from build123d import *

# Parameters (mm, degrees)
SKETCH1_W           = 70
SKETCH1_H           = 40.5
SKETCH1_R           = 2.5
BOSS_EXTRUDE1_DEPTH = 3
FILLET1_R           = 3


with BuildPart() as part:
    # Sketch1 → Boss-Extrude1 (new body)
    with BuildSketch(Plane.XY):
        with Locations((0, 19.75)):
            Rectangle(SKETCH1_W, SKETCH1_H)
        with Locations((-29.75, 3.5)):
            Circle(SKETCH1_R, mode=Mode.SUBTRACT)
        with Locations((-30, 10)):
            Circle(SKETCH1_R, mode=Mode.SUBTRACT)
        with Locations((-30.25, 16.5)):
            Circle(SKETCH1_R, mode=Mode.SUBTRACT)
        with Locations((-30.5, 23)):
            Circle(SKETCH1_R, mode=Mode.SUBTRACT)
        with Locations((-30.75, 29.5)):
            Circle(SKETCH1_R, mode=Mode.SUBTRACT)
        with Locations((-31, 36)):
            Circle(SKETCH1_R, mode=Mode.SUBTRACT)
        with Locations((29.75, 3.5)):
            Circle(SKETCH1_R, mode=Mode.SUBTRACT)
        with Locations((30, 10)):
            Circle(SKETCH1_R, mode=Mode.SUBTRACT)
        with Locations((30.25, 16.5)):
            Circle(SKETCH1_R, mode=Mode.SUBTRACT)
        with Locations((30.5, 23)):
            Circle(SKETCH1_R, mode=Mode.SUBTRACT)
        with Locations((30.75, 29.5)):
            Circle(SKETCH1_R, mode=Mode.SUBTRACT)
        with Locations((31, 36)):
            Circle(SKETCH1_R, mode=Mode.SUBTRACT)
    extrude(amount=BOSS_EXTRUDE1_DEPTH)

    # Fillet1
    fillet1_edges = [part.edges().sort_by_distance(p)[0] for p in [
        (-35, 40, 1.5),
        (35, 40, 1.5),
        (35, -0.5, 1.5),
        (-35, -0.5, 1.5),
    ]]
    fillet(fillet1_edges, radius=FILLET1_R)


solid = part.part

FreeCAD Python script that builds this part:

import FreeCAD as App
import Part
import Sketcher
Q = App.Units.Quantity


def edges_at(feature, points):
    """Names of the edges that pass closest to the given points."""
    edges = feature.Shape.Edges
    near = lambda p: min(range(len(edges)), key=lambda i: edges[i].distToShape(Part.Vertex(*p))[0])
    return sorted({f"Edge{near(p) + 1}" for p in points})


def add_polygon(sketch, points):
    """Adds a closed chain of lines whose ends are joined by coincident constraints."""
    first, n = sketch.GeometryCount, len(points)
    for a, b in zip(points, points[1:] + points[:1]):
        sketch.addGeometry(Part.LineSegment(App.Vector(*a, 0), App.Vector(*b, 0)), False)
    for i in range(n):
        sketch.addConstraint(Sketcher.Constraint("Coincident", first + i, 2, first + (i + 1) % n, 1))

doc = App.newDocument("Part")
body = doc.addObject("PartDesign::Body", "Body")

# Sketch on XY plane
sketch1 = doc.addObject("Sketcher::SketchObject", "Sketch")
body.addObject(sketch1)
sketch1.AttachmentSupport = (doc.XY_Plane, [""])
sketch1.MapMode = "FlatFace"
add_polygon(sketch1, [(-35, 40), (-35, -0.5), (35, -0.5), (35, 40)])  # lines 0-3
sketch1.addGeometry(Part.Circle(App.Vector(-29.75, 3.5, 0), App.Vector(0, 0, 1), 2.5), False)  # 4
sketch1.addGeometry(Part.Circle(App.Vector(-30, 10, 0), App.Vector(0, 0, 1), 2.5), False)  # 5
sketch1.addGeometry(Part.Circle(App.Vector(-30.25, 16.5, 0), App.Vector(0, 0, 1), 2.5), False)  # 6
sketch1.addGeometry(Part.Circle(App.Vector(29.75, 3.5, 0), App.Vector(0, 0, 1), 2.5), False)  # 7
sketch1.addGeometry(Part.Circle(App.Vector(30, 10, 0), App.Vector(0, 0, 1), 2.5), False)  # 8
sketch1.addGeometry(Part.Circle(App.Vector(30.25, 16.5, 0), App.Vector(0, 0, 1), 2.5), False)  # 9
sketch1.addGeometry(Part.Circle(App.Vector(-30.5, 23, 0), App.Vector(0, 0, 1), 2.5), False)  # 10
sketch1.addGeometry(Part.Circle(App.Vector(-30.75, 29.5, 0), App.Vector(0, 0, 1), 2.5), False)  # 11
sketch1.addGeometry(Part.Circle(App.Vector(-31, 36, 0), App.Vector(0, 0, 1), 2.5), False)  # 12
sketch1.addGeometry(Part.Circle(App.Vector(30.5, 23, 0), App.Vector(0, 0, 1), 2.5), False)  # 13
sketch1.addGeometry(Part.Circle(App.Vector(30.75, 29.5, 0), App.Vector(0, 0, 1), 2.5), False)  # 14
sketch1.addGeometry(Part.Circle(App.Vector(31, 36, 0), App.Vector(0, 0, 1), 2.5), False)  # 15
sketch1.addConstraint([
    Sketcher.Constraint("Vertical", 0),
    Sketcher.Constraint("Horizontal", 1),
    Sketcher.Constraint("Vertical", 2),
    Sketcher.Constraint("Horizontal", 3),
    Sketcher.Constraint("Equal", 4, 5),
    Sketcher.Constraint("Equal", 5, 6),
    Sketcher.Constraint("Equal", 6, 7),
    Sketcher.Constraint("Equal", 7, 8),
    Sketcher.Constraint("Equal", 8, 9),
    Sketcher.Constraint("Equal", 9, 10),
    Sketcher.Constraint("Equal", 10, 11),
    Sketcher.Constraint("Equal", 11, 12),
    Sketcher.Constraint("Equal", 12, 13),
    Sketcher.Constraint("Equal", 13, 14),
    Sketcher.Constraint("Equal", 14, 15),
    Sketcher.Constraint("Symmetric", 4, 3, 7, 3, -2),
    Sketcher.Constraint("Symmetric", 5, 3, 8, 3, -2),
    Sketcher.Constraint("Symmetric", 6, 3, 9, 3, -2),
    Sketcher.Constraint("Symmetric", 10, 3, 13, 3, -2),
    Sketcher.Constraint("Symmetric", 11, 3, 14, 3, -2),
    Sketcher.Constraint("Symmetric", 12, 3, 15, 3, -2),
    Sketcher.Constraint("Diameter", 4, Q("5 mm")),
    Sketcher.Constraint("DistanceX", 1, 1, 1, 2, Q("70 mm")),
    Sketcher.Constraint("DistanceY", 0, 2, 0, 1, Q("40.5 mm")),
    Sketcher.Constraint("DistanceX", 5, 3, -1, 1, Q("30 mm")),
    Sketcher.Constraint("DistanceY", -1, 1, 5, 3, Q("10 mm")),
    Sketcher.Constraint("DistanceY", -1, 1, 10, 3, Q("23 mm")),
    Sketcher.Constraint("DistanceX", 12, 3, -1, 1, Q("31 mm")),
    Sketcher.Constraint("DistanceY", -1, 1, 12, 3, Q("36 mm")),
    Sketcher.Constraint("DistanceX", 0, 2, -1, 1, Q("35 mm")),
    Sketcher.Constraint("DistanceY", -1, 1, 2, 2, Q("40 mm")),
    Sketcher.Constraint("DistanceY", 4, 3, 6, 3, Q("13 mm")),
    Sketcher.Constraint("DistanceX", 6, 3, 7, 3, Q("60 mm")),
    Sketcher.Constraint("DistanceY", 6, 3, 11, 3, Q("13 mm")),
    Sketcher.Constraint("DistanceX", 11, 3, 4, 3, Q("1 mm")),
    Sketcher.Constraint("DistanceX", 10, 3, 13, 3, Q("61 mm")),
    Sketcher.Constraint("DistanceY", 0, 2, 4, 3, Q("4 mm")),
    Sketcher.Constraint("DistanceX", 6, 3, 4, 3, Q("0.5 mm")),
])
pad1 = doc.addObject("PartDesign::Pad", "Pad")
body.addObject(pad1)
pad1.Profile = sketch1
pad1.Length = 3
doc.recompute()

fillet = doc.addObject("PartDesign::Fillet", "Fillet")
body.addObject(fillet)
fillet.Base = (pad1, edges_at(pad1, [
    (-35, 40, 1.5),
    (35, 40, 1.5),
    (35, -0.5, 1.5),
    (-35, -0.5, 1.5),
]))
fillet.Radius = 3

doc.recompute()
